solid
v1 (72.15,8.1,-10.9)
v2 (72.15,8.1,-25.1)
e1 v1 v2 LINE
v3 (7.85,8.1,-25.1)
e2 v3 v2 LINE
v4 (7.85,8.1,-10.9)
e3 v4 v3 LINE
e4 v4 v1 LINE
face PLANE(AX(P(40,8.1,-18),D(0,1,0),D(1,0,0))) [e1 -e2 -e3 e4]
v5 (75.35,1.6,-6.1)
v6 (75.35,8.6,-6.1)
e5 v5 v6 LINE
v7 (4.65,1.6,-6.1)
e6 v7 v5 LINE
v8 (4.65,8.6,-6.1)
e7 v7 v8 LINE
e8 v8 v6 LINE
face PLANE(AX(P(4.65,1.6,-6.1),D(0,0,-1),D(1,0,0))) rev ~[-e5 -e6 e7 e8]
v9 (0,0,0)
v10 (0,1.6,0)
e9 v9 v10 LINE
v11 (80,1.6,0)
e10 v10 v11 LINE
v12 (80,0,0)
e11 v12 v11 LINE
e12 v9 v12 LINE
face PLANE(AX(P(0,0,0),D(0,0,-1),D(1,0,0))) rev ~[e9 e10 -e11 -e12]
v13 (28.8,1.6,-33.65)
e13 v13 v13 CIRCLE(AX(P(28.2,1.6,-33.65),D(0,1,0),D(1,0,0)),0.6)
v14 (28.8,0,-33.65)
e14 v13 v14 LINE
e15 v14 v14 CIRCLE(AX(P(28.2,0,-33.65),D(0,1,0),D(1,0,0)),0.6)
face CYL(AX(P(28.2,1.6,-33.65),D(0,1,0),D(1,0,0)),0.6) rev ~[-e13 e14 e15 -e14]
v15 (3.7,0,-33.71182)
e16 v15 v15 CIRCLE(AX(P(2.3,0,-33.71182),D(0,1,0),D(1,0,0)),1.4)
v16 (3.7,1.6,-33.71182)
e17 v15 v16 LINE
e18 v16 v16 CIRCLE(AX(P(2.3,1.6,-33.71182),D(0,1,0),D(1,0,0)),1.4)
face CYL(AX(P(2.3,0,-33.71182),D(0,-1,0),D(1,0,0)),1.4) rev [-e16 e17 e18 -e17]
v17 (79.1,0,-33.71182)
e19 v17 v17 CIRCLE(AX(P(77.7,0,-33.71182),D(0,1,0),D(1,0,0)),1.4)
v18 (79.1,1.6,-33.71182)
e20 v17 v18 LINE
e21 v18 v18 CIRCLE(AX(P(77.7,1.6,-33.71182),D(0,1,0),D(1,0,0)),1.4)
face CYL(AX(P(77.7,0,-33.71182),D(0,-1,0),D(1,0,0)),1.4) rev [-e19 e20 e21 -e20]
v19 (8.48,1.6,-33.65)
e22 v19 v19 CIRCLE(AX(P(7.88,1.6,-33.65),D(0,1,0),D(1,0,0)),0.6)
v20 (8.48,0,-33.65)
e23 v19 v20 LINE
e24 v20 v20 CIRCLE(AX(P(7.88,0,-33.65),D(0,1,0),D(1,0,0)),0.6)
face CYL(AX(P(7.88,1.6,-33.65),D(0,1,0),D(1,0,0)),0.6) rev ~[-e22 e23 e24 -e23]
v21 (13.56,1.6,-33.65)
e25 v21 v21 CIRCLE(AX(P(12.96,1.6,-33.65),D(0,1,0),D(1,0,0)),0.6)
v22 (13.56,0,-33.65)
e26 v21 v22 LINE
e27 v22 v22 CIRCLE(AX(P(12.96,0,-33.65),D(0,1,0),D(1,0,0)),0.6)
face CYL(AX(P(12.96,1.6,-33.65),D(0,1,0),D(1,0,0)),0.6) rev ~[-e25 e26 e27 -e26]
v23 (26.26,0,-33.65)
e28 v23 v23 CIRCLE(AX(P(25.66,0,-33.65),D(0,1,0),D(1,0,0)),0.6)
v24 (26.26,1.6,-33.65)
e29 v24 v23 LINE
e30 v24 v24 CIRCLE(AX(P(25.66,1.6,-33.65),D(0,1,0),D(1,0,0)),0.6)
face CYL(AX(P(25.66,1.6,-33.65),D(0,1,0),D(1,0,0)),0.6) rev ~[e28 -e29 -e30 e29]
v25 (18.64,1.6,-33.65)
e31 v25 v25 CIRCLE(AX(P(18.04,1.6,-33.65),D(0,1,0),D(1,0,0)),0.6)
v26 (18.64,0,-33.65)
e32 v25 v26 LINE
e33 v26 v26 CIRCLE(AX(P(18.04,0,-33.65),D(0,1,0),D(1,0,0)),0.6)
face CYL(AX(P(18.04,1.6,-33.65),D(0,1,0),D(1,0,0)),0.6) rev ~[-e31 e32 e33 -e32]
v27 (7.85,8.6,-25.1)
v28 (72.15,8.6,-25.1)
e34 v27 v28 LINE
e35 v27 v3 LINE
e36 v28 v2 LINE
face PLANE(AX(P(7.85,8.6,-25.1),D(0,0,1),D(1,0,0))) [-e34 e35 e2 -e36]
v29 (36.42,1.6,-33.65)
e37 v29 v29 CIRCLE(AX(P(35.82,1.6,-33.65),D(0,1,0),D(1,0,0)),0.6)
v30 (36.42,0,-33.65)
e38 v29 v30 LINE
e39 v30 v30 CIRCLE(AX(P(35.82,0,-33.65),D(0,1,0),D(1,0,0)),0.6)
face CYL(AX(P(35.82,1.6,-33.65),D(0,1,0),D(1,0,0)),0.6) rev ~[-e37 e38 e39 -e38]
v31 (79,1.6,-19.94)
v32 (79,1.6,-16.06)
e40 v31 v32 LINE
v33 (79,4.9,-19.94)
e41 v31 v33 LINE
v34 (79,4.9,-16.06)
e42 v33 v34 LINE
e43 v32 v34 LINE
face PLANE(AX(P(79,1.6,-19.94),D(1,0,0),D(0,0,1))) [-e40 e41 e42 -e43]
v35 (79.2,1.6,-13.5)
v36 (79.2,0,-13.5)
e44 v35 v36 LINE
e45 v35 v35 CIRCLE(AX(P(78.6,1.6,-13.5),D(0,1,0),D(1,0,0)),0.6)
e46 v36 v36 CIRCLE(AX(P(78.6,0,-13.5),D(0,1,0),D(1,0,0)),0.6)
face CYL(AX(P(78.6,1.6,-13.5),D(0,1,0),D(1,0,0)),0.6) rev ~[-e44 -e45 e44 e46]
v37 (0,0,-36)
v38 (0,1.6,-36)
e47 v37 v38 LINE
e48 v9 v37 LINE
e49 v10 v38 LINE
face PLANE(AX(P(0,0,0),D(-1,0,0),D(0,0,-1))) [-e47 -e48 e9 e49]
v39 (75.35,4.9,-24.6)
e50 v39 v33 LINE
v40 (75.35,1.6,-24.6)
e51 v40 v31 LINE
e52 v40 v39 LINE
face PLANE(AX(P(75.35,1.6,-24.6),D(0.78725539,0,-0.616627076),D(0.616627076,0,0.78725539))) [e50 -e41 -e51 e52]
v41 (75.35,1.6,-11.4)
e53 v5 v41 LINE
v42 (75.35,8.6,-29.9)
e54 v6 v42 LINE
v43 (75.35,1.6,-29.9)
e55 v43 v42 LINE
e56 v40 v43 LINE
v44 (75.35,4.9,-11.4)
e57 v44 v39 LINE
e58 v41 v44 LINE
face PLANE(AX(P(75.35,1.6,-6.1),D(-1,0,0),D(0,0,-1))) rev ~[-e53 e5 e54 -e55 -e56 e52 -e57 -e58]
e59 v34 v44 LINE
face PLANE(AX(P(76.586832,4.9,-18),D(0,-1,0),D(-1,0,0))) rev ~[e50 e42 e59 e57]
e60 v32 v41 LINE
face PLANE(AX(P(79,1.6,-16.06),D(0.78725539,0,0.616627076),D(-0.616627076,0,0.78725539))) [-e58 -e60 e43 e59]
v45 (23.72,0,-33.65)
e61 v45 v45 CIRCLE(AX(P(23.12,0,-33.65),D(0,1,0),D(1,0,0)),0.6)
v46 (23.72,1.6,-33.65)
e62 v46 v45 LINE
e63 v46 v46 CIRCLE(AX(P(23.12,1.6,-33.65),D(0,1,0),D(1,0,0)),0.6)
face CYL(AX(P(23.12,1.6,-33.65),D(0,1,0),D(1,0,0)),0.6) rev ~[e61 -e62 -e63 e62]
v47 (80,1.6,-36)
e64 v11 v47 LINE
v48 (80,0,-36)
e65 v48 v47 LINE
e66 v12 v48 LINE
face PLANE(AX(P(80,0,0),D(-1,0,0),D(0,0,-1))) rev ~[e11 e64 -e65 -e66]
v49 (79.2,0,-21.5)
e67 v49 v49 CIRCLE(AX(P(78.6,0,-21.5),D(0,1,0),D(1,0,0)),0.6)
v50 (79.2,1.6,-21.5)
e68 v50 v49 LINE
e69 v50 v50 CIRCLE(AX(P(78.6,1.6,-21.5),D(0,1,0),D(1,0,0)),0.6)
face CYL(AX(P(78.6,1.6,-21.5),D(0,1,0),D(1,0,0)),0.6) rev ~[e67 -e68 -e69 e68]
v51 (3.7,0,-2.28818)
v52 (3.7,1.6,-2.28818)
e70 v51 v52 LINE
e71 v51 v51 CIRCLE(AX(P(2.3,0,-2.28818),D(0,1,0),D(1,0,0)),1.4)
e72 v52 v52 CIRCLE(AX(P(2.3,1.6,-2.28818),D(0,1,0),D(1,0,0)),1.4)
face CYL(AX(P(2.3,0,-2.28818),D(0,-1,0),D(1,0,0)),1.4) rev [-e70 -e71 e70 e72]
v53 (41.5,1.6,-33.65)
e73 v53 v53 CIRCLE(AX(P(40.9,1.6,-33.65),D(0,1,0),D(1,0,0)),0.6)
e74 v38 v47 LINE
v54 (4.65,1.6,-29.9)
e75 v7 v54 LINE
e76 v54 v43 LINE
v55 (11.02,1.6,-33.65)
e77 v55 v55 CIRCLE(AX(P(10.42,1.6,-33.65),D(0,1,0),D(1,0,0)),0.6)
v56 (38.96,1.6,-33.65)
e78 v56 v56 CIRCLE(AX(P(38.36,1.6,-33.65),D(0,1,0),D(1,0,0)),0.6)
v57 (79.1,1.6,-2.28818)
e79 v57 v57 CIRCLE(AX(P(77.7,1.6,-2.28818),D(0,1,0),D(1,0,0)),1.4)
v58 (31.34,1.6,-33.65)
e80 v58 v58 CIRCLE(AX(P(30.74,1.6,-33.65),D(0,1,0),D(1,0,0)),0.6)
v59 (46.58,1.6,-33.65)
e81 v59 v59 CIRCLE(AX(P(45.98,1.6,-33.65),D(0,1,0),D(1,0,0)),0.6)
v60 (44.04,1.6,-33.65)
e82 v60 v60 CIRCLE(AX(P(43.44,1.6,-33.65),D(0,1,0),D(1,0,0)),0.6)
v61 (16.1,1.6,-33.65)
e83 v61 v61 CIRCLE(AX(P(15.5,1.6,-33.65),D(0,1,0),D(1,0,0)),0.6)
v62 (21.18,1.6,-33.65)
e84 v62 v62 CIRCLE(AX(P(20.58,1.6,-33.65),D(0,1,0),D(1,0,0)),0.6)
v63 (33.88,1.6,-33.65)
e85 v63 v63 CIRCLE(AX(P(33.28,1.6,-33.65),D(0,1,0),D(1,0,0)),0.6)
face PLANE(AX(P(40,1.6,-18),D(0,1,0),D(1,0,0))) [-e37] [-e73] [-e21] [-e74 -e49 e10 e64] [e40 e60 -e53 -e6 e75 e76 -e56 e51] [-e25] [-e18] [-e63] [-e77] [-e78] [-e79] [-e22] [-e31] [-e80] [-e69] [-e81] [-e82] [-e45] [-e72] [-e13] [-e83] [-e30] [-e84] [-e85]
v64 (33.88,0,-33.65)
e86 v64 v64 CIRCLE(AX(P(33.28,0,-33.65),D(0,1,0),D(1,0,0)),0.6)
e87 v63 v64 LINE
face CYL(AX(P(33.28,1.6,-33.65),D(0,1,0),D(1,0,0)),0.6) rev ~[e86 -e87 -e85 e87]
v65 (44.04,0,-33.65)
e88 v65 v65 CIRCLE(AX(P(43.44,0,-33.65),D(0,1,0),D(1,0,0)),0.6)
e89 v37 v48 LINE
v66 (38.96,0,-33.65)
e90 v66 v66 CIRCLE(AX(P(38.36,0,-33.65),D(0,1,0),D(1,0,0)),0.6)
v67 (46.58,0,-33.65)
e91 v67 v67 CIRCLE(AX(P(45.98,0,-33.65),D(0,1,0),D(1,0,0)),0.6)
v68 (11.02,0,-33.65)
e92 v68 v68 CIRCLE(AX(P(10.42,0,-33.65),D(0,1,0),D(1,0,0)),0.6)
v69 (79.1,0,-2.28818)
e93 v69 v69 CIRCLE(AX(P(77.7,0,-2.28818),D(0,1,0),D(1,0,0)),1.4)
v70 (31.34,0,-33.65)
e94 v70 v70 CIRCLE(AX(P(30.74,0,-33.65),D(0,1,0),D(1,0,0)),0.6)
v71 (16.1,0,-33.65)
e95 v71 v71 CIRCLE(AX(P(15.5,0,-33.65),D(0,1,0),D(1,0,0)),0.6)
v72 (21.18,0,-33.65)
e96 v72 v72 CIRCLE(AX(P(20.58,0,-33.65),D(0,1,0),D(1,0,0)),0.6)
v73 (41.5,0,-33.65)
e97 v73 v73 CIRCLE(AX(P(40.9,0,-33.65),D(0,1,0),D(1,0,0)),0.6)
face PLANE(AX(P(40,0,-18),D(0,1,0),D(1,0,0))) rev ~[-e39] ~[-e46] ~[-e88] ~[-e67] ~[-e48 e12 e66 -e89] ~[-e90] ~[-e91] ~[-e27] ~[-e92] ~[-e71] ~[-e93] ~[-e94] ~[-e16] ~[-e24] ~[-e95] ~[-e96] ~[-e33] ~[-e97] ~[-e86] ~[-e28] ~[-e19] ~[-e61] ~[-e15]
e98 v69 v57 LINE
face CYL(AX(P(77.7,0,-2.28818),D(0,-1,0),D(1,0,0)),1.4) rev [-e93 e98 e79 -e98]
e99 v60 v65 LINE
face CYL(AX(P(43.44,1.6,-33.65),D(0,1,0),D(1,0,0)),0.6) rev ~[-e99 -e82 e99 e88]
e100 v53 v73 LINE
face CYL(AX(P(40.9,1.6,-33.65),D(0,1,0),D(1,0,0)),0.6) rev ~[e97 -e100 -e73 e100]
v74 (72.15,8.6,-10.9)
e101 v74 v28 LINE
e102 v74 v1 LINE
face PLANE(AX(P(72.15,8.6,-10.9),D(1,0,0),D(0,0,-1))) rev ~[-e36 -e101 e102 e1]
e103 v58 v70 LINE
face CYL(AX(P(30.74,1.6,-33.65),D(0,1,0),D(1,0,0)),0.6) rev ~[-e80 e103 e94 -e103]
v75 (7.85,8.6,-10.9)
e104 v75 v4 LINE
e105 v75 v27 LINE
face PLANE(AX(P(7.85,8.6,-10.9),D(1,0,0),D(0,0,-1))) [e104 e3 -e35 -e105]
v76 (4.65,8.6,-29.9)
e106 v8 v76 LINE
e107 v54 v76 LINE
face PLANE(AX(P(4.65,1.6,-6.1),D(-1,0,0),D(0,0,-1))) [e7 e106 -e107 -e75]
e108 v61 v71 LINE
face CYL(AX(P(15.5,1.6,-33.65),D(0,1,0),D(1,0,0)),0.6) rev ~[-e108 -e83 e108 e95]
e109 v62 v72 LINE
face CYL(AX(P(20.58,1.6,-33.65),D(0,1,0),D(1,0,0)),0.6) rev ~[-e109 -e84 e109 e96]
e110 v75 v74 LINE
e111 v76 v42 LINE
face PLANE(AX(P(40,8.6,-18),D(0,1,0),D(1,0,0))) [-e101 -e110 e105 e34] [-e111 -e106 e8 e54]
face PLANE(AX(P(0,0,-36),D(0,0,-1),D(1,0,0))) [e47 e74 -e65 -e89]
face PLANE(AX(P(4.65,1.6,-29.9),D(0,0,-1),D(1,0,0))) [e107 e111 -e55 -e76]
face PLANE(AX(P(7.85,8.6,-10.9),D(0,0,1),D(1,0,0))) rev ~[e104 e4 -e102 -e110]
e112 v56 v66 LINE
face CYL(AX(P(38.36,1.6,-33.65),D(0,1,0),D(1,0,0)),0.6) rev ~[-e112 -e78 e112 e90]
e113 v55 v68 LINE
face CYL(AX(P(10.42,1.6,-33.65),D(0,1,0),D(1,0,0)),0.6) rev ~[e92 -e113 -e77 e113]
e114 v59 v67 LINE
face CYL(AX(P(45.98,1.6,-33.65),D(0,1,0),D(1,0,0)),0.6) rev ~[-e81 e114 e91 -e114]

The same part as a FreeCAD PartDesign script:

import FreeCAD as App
import Part
import Sketcher


def add_polygon(sketch, points):
    """Adds a closed chain of lines whose ends are joined by coincident constraints."""
    first, n = sketch.GeometryCount, len(points)
    for a, b in zip(points, points[1:] + points[:1]):
        sketch.addGeometry(Part.LineSegment(App.Vector(*a, 0), App.Vector(*b, 0)), False)
    for i in range(n):
        sketch.addConstraint(Sketcher.Constraint("Coincident", first + i, 2, first + (i + 1) % n, 1))

doc = App.newDocument("Part")
body = doc.addObject("PartDesign::Body", "Body")

# Sketch on XZ plane
sketch1 = doc.addObject("Sketcher::SketchObject", "Sketch")
body.addObject(sketch1)
sketch1.AttachmentSupport = (doc.XZ_Plane, [""])
sketch1.MapMode = "FlatFace"
add_polygon(sketch1, [(0, -36), (0, 0), (80, 0), (80, -36)])  # lines 0-3
sketch1.addGeometry(Part.Circle(App.Vector(2.3, -2.3, 0), App.Vector(0, 0, 1), 1.4), False)  # 4
sketch1.addGeometry(Part.Circle(App.Vector(77.7, -2.3, 0), App.Vector(0, 0, 1), 1.4), False)  # 5
sketch1.addGeometry(Part.Circle(App.Vector(2.3, -33.7, 0), App.Vector(0, 0, 1), 1.4), False)  # 6
sketch1.addGeometry(Part.Circle(App.Vector(77.7, -33.7, 0), App.Vector(0, 0, 1), 1.4), False)  # 7
sketch1.addConstraint([
    Sketcher.Constraint("Vertical", 0),
    Sketcher.Constraint("Horizontal", 1),
    Sketcher.Constraint("Vertical", 2),
    Sketcher.Constraint("Horizontal", 3),
    Sketcher.Constraint("Coincident", 0, 2, -1, 1),
    Sketcher.Constraint("Equal", 4, 5),
    Sketcher.Constraint("Equal", 5, 6),
    Sketcher.Constraint("Equal", 6, 7),
    Sketcher.Constraint("Horizontal", 4, 3, 5, 3),
    Sketcher.Constraint("Horizontal", 6, 3, 7, 3),
    Sketcher.Constraint("Vertical", 4, 3, 6, 3),
    Sketcher.Constraint("Vertical", 5, 3, 7, 3),
    Sketcher.Constraint("Diameter", 4, 2.8),
    Sketcher.Constraint("DistanceX", 1, 1, 1, 2, 80.0),
    Sketcher.Constraint("DistanceY", 0, 1, 0, 2, 36.0),
    Sketcher.Constraint("DistanceX", -1, 1, 4, 3, 2.3),
    Sketcher.Constraint("DistanceX", -1, 1, 5, 3, 77.7),
    Sketcher.Constraint("DistanceY", 4, 3, -1, 1, 2.28818),
    Sketcher.Constraint("DistanceY", 6, 3, -1, 1, 33.71182),
])
pad1 = doc.addObject("PartDesign::Pad", "Pad")
body.addObject(pad1)
pad1.Profile = sketch1
pad1.Length = 1.6
pad1.Reversed = True

# Sketch on XZ plane
sketch2 = doc.addObject("Sketcher::SketchObject", "Sketch001")
body.addObject(sketch2)
sketch2.AttachmentSupport = (doc.XZ_Plane, [""])
sketch2.MapMode = "FlatFace"
sketch2.AttachmentOffset = App.Placement(App.Vector(0, 0, -1.6), App.Rotation())
add_polygon(sketch2, [(5, -30), (5, -6), (75, -6), (75, -30)])  # lines 0-3
sketch2.addConstraint([
    Sketcher.Constraint("Vertical", 0),
    Sketcher.Constraint("Horizontal", 1),
    Sketcher.Constraint("Vertical", 2),
    Sketcher.Constraint("Horizontal", 3),
    Sketcher.Constraint("DistanceX", 1, 1, 1, 2, 70.7),
    Sketcher.Constraint("DistanceY", 0, 1, 0, 2, 23.8),
    Sketcher.Constraint("DistanceY", 0, 2, -1, 1, 6.1),
    Sketcher.Constraint("DistanceX", -1, 1, 0, 2, 4.65),
])
pad2 = doc.addObject("PartDesign::Pad", "Pad001")
body.addObject(pad2)
pad2.Profile = sketch2
pad2.Length = 7
pad2.Reversed = True

# Sketch on XZ plane
sketch3 = doc.addObject("Sketcher::SketchObject", "Sketch002")
body.addObject(sketch3)
sketch3.AttachmentSupport = (doc.XZ_Plane, [""])
sketch3.MapMode = "FlatFace"
sketch3.AttachmentOffset = App.Placement(App.Vector(0, 0, -8.6), App.Rotation())
add_polygon(sketch3, [(8, -25), (8, -11), (72, -11), (72, -25)])  # lines 0-3
sketch3.addConstraint([
    Sketcher.Constraint("Vertical", 0),
    Sketcher.Constraint("Horizontal", 1),
    Sketcher.Constraint("Vertical", 2),
    Sketcher.Constraint("Horizontal", 3),
    Sketcher.Constraint("DistanceX", 1, 1, 1, 2, 64.3),
    Sketcher.Constraint("DistanceY", 0, 1, 0, 2, 14.2),
    Sketcher.Constraint("DistanceY", 0, 2, -1, 1, 10.9),
    Sketcher.Constraint("DistanceX", -1, 1, 0, 2, 7.85),
])
pocket1 = doc.addObject("PartDesign::Pocket", "Pocket")
body.addObject(pocket1)
pocket1.Profile = sketch3
pocket1.Length = 0.5
pocket1.Reversed = True

# Sketch on XZ plane
sketch4 = doc.addObject("Sketcher::SketchObject", "Sketch003")
body.addObject(sketch4)
sketch4.AttachmentSupport = (doc.XZ_Plane, [""])
sketch4.MapMode = "FlatFace"
sketch4.AttachmentOffset = App.Placement(App.Vector(0, 0, -1.6), App.Rotation())
add_polygon(sketch4, [(79, -19.9), (75.3, -24.6), (75.3, -11.4), (79, -16.1)])  # lines 0-3
sketch4.addConstraint([
    Sketcher.Constraint("Vertical", 1),
    Sketcher.Constraint("Vertical", 3),
    Sketcher.Constraint("Equal", 0, 2),
    Sketcher.Constraint("DistanceY", 1, 1, 1, 2, 13.2),
    Sketcher.Constraint("DistanceX", -1, 1, 2, 2, 79.0),
    Sketcher.Constraint("DistanceY", 3, 2, 3, 1, 3.88),
    Sketcher.Constraint("DistanceY", 0, 2, -1, 1, 24.6),
    Sketcher.Constraint("DistanceX", -1, 1, 0, 2, 75.35),
])
pad3 = doc.addObject("PartDesign::Pad", "Pad002")
body.addObject(pad3)
pad3.Profile = sketch4
pad3.Length = 3.3
pad3.Reversed = True

# Sketch on XZ plane
sketch5 = doc.addObject("Sketcher::SketchObject", "Sketch004")
body.addObject(sketch5)
sketch5.AttachmentSupport = (doc.XZ_Plane, [""])
sketch5.MapMode = "FlatFace"
sketch5.AttachmentOffset = App.Placement(App.Vector(0, 0, -1.6), App.Rotation())
sketch5.addGeometry([
    Part.Circle(App.Vector(7.9, -33.6, 0), App.Vector(0, 0, 1), 0.6),  # 0
    Part.Circle(App.Vector(10.4, -33.6, 0), App.Vector(0, 0, 1), 0.6),  # 1
    Part.Circle(App.Vector(13, -33.6, 0), App.Vector(0, 0, 1), 0.6),  # 2
    Part.Circle(App.Vector(15.5, -33.6, 0), App.Vector(0, 0, 1), 0.6),  # 3
    Part.Circle(App.Vector(18, -33.6, 0), App.Vector(0, 0, 1), 0.6),  # 4
    Part.Circle(App.Vector(20.6, -33.6, 0), App.Vector(0, 0, 1), 0.6),  # 5
    Part.Circle(App.Vector(23.1, -33.6, 0), App.Vector(0, 0, 1), 0.6),  # 6
    Part.Circle(App.Vector(25.7, -33.6, 0), App.Vector(0, 0, 1), 0.6),  # 7
    Part.Circle(App.Vector(28.2, -33.6, 0), App.Vector(0, 0, 1), 0.6),  # 8
    Part.Circle(App.Vector(30.7, -33.6, 0), App.Vector(0, 0, 1), 0.6),  # 9
    Part.Circle(App.Vector(33.3, -33.6, 0), App.Vector(0, 0, 1), 0.6),  # 10
    Part.Circle(App.Vector(35.8, -33.6, 0), App.Vector(0, 0, 1), 0.6),  # 11
    Part.Circle(App.Vector(38.4, -33.6, 0), App.Vector(0, 0, 1), 0.6),  # 12
    Part.Circle(App.Vector(40.9, -33.6, 0), App.Vector(0, 0, 1), 0.6),  # 13
    Part.Circle(App.Vector(43.4, -33.6, 0), App.Vector(0, 0, 1), 0.6),  # 14
    Part.Circle(App.Vector(46, -33.6, 0), App.Vector(0, 0, 1), 0.6),  # 15
    Part.Circle(App.Vector(78.6, -21.5, 0), App.Vector(0, 0, 1), 0.6),  # 16
    Part.Circle(App.Vector(78.6, -13.5, 0), App.Vector(0, 0, 1), 0.6),  # 17
], False)
sketch5.addConstraint([
    Sketcher.Constraint("Equal", 0, 1),
    Sketcher.Constraint("Equal", 1, 2),
    Sketcher.Constraint("Equal", 2, 3),
    Sketcher.Constraint("Equal", 3, 4),
    Sketcher.Constraint("Equal", 4, 5),
    Sketcher.Constraint("Equal", 5, 6),
    Sketcher.Constraint("Equal", 6, 7),
    Sketcher.Constraint("Equal", 7, 8),
    Sketcher.Constraint("Equal", 8, 9),
    Sketcher.Constraint("Equal", 9, 10),
    Sketcher.Constraint("Equal", 10, 11),
    Sketcher.Constraint("Equal", 11, 12),
    Sketcher.Constraint("Equal", 12, 13),
    Sketcher.Constraint("Equal", 13, 14),
    Sketcher.Constraint("Equal", 14, 15),
    Sketcher.Constraint("Equal", 15, 16),
    Sketcher.Constraint("Equal", 16, 17),
    Sketcher.Constraint("Horizontal", 0, 3, 1, 3),
    Sketcher.Constraint("Horizontal", 1, 3, 2, 3),
    Sketcher.Constraint("Horizontal", 2, 3, 3, 3),
    Sketcher.Constraint("Horizontal", 3, 3, 4, 3),
    Sketcher.Constraint("Horizontal", 4, 3, 5, 3),
    Sketcher.Constraint("Horizontal", 5, 3, 6, 3),
    Sketcher.Constraint("Horizontal", 6, 3, 7, 3),
    Sketcher.Constraint("Horizontal", 7, 3, 8, 3),
    Sketcher.Constraint("Horizontal", 8, 3, 9, 3),
    Sketcher.Constraint("Horizontal", 9, 3, 10, 3),
    Sketcher.Constraint("Horizontal", 10, 3, 11, 3),
    Sketcher.Constraint("Horizontal", 11, 3, 12, 3),
    Sketcher.Constraint("Horizontal", 12, 3, 13, 3),
    Sketcher.Constraint("Horizontal", 13, 3, 14, 3),
    Sketcher.Constraint("Horizontal", 14, 3, 15, 3),
    Sketcher.Constraint("Vertical", 16, 3, 17, 3),
    Sketcher.Constraint("Diameter", 0, 1.2),
    Sketcher.Constraint("DistanceY", 16, 3, 17, 3, 8.0),
    Sketcher.Constraint("DistanceX", -1, 1, 3, 3, 15.5),
    Sketcher.Constraint("DistanceX", -1, 1, 8, 3, 28.2),
    Sketcher.Constraint("DistanceX", -1, 1, 13, 3, 40.9),
    Sketcher.Constraint("DistanceX", -1, 1, 16, 3, 78.6),
    Sketcher.Constraint("DistanceY", 16, 3, -1, 1, 21.5),
    Sketcher.Constraint("DistanceX", 0, 3, 5, 3, 12.7),
    Sketcher.Constraint("DistanceX", 1, 3, 6, 3, 12.7),
    Sketcher.Constraint("DistanceX", 2, 3, 7, 3, 12.7),
    Sketcher.Constraint("DistanceX", 4, 3, 9, 3, 12.7),
    Sketcher.Constraint("DistanceX", 5, 3, 10, 3, 12.7),
    Sketcher.Constraint("DistanceX", 6, 3, 11, 3, 12.7),
    Sketcher.Constraint("DistanceX", 7, 3, 12, 3, 12.7),
    Sketcher.Constraint("DistanceX", 9, 3, 14, 3, 12.7),
    Sketcher.Constraint("DistanceX", 10, 3, 15, 3, 12.7),
    Sketcher.Constraint("DistanceX", -1, 1, 0, 3, 7.88),
    Sketcher.Constraint("DistanceY", 0, 3, -1, 1, 33.65),
    Sketcher.Constraint("DistanceX", -1, 1, 1, 3, 10.42),
    Sketcher.Constraint("DistanceX", -1, 1, 2, 3, 12.96),
    Sketcher.Constraint("DistanceX", -1, 1, 4, 3, 18.04),
])
pocket2 = doc.addObject("PartDesign::Pocket", "Pocket001")
body.addObject(pocket2)
pocket2.Profile = sketch5
pocket2.Type = "ThroughAll"
pocket2.Reversed = True

doc.recompute()
